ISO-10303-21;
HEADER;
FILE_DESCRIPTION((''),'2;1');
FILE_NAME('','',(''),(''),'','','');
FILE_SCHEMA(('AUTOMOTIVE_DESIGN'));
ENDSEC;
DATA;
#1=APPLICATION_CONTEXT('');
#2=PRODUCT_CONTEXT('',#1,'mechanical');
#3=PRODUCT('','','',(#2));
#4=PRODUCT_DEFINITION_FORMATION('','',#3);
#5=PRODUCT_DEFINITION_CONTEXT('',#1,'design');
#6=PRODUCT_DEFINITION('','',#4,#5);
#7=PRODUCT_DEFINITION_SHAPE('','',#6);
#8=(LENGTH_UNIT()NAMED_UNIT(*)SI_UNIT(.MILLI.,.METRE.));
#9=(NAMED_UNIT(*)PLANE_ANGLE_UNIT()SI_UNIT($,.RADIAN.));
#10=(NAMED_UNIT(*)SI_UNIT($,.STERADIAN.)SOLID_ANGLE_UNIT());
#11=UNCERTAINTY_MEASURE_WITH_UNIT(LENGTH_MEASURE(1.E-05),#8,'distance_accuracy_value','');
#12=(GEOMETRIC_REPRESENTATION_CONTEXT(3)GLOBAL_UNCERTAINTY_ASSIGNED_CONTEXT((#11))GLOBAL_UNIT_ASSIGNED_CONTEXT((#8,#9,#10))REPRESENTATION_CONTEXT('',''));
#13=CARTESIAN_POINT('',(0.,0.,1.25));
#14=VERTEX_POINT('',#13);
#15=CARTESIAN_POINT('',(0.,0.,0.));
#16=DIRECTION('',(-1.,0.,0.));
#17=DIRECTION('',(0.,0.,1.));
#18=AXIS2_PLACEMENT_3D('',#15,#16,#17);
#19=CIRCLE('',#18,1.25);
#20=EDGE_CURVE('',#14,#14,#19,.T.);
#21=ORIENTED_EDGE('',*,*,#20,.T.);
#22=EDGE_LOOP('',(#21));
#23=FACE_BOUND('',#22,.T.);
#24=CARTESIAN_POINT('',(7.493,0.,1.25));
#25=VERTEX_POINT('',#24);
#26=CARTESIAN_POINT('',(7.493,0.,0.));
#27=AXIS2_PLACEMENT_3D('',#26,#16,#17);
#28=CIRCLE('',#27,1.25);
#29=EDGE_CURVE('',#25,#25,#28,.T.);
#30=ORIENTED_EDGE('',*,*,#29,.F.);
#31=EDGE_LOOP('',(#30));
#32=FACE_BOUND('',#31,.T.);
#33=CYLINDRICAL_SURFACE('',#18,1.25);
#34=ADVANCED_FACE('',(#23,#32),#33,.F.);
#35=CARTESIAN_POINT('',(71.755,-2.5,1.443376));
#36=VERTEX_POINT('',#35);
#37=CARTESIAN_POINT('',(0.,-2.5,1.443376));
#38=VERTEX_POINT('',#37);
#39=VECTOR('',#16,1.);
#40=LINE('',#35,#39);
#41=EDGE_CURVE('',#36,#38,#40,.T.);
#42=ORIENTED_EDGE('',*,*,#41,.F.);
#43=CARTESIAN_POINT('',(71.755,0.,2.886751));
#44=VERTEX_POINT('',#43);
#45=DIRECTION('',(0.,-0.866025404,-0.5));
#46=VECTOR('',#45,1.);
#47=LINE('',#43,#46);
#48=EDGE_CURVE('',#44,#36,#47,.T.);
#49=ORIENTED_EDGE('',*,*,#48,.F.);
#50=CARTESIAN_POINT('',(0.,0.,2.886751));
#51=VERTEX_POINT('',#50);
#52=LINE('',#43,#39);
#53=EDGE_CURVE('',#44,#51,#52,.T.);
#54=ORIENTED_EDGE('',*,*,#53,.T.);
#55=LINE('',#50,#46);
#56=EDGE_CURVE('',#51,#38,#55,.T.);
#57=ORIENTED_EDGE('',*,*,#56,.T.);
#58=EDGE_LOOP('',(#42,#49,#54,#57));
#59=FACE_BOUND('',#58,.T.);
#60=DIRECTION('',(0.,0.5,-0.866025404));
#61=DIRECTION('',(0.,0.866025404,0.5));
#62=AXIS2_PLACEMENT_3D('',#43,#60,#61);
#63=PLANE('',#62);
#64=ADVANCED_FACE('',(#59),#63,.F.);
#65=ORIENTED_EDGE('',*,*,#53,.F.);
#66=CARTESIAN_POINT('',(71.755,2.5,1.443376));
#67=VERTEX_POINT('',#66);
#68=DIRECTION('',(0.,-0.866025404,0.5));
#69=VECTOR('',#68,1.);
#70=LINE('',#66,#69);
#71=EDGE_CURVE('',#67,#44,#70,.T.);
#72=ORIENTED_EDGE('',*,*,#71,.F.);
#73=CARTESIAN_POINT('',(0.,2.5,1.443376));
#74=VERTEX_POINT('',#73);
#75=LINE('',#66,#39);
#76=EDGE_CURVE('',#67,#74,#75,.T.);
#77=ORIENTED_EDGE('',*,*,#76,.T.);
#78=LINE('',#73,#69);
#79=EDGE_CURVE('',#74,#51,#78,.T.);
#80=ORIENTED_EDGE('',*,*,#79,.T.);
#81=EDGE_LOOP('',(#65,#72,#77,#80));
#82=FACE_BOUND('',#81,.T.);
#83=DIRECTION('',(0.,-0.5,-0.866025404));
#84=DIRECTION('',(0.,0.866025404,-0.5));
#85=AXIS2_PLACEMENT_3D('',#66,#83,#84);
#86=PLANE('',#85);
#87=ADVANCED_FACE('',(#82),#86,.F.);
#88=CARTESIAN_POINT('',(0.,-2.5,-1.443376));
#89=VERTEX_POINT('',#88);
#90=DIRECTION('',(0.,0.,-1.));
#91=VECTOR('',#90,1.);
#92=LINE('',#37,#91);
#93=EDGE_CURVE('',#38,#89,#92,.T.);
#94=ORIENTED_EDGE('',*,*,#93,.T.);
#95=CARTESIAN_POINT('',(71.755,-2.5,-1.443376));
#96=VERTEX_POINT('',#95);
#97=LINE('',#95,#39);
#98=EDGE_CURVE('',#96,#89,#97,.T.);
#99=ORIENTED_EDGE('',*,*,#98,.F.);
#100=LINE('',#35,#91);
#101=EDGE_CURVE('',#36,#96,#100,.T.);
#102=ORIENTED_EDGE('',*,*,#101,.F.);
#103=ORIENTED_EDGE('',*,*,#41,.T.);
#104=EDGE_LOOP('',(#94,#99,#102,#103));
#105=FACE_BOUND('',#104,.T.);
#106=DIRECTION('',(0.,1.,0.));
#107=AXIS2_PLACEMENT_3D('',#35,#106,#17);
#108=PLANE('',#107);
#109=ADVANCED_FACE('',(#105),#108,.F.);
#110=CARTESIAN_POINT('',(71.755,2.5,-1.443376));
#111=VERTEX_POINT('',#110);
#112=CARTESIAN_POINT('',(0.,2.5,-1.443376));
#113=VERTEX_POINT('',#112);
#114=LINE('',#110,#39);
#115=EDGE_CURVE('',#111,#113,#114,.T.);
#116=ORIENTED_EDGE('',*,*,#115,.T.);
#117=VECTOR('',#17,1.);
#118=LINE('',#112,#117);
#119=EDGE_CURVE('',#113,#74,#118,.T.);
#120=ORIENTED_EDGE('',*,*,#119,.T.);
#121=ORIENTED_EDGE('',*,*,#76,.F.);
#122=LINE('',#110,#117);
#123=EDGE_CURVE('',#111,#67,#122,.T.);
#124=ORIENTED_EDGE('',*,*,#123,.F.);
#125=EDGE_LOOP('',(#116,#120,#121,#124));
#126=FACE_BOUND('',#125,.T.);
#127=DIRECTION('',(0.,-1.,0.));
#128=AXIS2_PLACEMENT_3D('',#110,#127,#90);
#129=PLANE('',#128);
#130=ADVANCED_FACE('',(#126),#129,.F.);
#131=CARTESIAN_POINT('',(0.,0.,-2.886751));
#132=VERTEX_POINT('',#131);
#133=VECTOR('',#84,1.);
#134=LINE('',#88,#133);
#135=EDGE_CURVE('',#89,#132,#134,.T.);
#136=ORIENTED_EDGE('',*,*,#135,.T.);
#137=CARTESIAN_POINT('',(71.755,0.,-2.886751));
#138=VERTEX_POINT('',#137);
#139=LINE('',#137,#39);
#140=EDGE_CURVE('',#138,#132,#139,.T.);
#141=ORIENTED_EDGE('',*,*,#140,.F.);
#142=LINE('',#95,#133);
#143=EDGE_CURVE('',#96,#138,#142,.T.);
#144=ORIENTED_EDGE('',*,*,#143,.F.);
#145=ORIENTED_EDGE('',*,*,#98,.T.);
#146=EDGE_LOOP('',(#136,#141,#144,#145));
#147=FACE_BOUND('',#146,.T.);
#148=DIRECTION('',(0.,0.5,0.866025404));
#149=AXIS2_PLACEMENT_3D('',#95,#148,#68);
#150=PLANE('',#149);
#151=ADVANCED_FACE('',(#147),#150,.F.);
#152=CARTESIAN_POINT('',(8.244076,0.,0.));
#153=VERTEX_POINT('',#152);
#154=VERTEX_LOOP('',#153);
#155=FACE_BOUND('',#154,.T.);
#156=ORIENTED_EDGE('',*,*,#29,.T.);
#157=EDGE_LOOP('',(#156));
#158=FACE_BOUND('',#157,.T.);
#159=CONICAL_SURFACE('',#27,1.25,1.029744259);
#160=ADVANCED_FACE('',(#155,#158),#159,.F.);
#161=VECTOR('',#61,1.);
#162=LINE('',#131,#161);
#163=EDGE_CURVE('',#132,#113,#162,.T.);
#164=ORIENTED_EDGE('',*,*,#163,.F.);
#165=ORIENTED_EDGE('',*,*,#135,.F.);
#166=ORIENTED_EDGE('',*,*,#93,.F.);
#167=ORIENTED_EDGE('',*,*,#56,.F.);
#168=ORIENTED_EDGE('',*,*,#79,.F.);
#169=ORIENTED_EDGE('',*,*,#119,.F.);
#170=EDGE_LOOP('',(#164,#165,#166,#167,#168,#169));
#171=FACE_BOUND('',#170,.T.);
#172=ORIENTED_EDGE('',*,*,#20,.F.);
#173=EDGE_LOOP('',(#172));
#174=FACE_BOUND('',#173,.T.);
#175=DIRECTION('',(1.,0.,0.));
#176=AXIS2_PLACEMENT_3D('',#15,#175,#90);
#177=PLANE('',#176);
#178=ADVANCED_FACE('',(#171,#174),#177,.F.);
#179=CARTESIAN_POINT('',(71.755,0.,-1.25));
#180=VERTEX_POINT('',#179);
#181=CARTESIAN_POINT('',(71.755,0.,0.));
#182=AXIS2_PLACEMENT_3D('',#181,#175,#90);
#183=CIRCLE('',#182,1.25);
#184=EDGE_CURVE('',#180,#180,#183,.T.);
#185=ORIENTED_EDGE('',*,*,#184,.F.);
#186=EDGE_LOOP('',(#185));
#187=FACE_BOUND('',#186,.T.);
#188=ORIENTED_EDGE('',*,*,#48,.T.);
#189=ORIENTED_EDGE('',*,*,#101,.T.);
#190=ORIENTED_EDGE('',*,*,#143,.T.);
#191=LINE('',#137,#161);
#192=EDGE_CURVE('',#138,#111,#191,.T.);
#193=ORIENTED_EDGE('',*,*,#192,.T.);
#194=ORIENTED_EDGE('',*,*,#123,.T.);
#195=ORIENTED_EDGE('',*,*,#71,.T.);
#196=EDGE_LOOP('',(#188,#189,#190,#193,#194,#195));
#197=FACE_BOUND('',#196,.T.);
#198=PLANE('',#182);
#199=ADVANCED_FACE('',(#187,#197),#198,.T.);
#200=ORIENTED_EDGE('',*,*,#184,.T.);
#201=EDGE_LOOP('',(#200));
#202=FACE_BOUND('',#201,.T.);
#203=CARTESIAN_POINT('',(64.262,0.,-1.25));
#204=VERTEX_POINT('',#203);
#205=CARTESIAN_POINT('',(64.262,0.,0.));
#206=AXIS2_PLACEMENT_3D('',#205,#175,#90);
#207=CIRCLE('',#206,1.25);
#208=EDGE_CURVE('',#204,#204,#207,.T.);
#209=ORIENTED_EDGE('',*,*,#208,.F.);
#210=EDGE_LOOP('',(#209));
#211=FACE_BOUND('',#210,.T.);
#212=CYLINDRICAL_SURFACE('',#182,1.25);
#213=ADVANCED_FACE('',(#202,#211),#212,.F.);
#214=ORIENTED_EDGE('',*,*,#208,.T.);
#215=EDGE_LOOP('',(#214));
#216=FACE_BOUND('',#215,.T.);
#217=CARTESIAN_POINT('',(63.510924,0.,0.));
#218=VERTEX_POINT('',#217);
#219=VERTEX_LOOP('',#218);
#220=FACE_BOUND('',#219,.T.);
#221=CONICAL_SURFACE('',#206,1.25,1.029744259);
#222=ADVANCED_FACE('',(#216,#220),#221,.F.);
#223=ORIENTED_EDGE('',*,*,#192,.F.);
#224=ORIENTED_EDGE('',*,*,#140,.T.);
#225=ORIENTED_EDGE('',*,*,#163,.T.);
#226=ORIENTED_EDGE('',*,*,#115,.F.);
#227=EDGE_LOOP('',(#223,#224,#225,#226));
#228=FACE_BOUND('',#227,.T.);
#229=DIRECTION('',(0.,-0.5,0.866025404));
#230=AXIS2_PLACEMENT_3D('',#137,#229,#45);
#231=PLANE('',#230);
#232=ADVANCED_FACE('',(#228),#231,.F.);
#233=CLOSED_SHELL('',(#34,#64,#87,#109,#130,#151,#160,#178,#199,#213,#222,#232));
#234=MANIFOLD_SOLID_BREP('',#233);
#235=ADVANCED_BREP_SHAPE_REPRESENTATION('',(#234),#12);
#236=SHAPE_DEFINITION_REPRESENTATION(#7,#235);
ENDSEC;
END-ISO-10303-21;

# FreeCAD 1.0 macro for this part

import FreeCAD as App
import Part
import Sketcher
Q = App.Units.Quantity


def add_polygon(sketch, points):
    """Adds a closed chain of lines whose ends are joined by coincident constraints."""
    first, n = sketch.GeometryCount, len(points)
    for a, b in zip(points, points[1:] + points[:1]):
        sketch.addGeometry(Part.LineSegment(App.Vector(*a, 0), App.Vector(*b, 0)), False)
    for i in range(n):
        sketch.addConstraint(Sketcher.Constraint("Coincident", first + i, 2, first + (i + 1) % n, 1))

doc = App.newDocument("Part")
body = doc.addObject("PartDesign::Body", "Body")

# Sketch on YZ plane
sketch1 = body.newObject("Sketcher::SketchObject", "Sketch")
sketch1.AttachmentSupport = (doc.getObject("YZ_Plane"), [""])
sketch1.MapMode = "FlatFace"
add_polygon(sketch1, [(2.5, -1.4), (2.5, 1.4), (0, 2.9), (-2.5, 1.4), (-2.5, -1.4), (0, -2.9)])  # lines 0-5
sketch1.addConstraint(Sketcher.Constraint("Vertical", 0))
sketch1.addConstraint(Sketcher.Constraint("Vertical", 3))
sketch1.addConstraint(Sketcher.Constraint("Symmetric", 0, 2, 3, 2, -1, 1))
sketch1.addConstraint(Sketcher.Constraint("Symmetric", 1, 2, 4, 2, -1, 1))
sketch1.addConstraint(Sketcher.Constraint("PointOnObject", 1, 2, -2))
sketch1.addConstraint(Sketcher.Constraint("Parallel", 2, 5))
sketch1.addConstraint(Sketcher.Constraint("Horizontal", 0, 2, 2, 2))
sketch1.addConstraint(Sketcher.Constraint("Angle", 1, Q("150 deg")))
sketch1.addConstraint(Sketcher.Constraint("DistanceY", 0, 1, 0, 2, 2.886751))
sketch1.addConstraint(Sketcher.Constraint("DistanceX", -1, 1, 0, 2, 2.5))
pad1 = body.newObject("PartDesign::Pad", "Pad")
pad1.Profile = sketch1
pad1.Length = Q("2.825 in")

# Sketch on YZ plane
sketch2 = body.newObject("Sketcher::SketchObject", "Sketch001")
sketch2.AttachmentSupport = (doc.getObject("YZ_Plane"), [""])
sketch2.MapMode = "FlatFace"
sketch2.addGeometry(Part.Circle(App.Vector(0, 0, 0), App.Vector(0, 0, 1), 1.2), False)
sketch2.addConstraint(Sketcher.Constraint("Coincident", 0, 3, -1, 1))
sketch2.addConstraint(Sketcher.Constraint("Diameter", 0, 2.5))
doc.recompute()
hole = body.newObject("PartDesign::Hole", "Hole")
hole.Profile = sketch2
hole.ThreadType = "None"
hole.Diameter = 2.5
hole.DepthType = "Dimension"
hole.Depth = Q("0.295 in")
hole.DrillPoint = "Angled"
hole.DrillPointAngle = 118
hole.Reversed = True

# Sketch on YZ plane
sketch3 = body.newObject("Sketcher::SketchObject", "Sketch002")
sketch3.AttachmentSupport = (doc.getObject("YZ_Plane"), [""])
sketch3.MapMode = "FlatFace"
sketch3.AttachmentOffset = App.Placement(App.Vector(0, 0, 2.825 * 25.4), App.Rotation())
sketch3.addGeometry(Part.Circle(App.Vector(0, 0, 0), App.Vector(0, 0, 1), 1.2), False)
sketch3.addConstraint(Sketcher.Constraint("Coincident", 0, 3, -1, 1))
sketch3.addConstraint(Sketcher.Constraint("Diameter", 0, 2.5))
doc.recompute()
hole2 = body.newObject("PartDesign::Hole", "Hole001")
hole2.Profile = sketch3
hole2.ThreadType = "None"
hole2.Diameter = 2.5
hole2.DepthType = "Dimension"
hole2.Depth = Q("0.295 in")
hole2.DrillPoint = "Angled"
hole2.DrillPointAngle = 118

doc.recompute()
